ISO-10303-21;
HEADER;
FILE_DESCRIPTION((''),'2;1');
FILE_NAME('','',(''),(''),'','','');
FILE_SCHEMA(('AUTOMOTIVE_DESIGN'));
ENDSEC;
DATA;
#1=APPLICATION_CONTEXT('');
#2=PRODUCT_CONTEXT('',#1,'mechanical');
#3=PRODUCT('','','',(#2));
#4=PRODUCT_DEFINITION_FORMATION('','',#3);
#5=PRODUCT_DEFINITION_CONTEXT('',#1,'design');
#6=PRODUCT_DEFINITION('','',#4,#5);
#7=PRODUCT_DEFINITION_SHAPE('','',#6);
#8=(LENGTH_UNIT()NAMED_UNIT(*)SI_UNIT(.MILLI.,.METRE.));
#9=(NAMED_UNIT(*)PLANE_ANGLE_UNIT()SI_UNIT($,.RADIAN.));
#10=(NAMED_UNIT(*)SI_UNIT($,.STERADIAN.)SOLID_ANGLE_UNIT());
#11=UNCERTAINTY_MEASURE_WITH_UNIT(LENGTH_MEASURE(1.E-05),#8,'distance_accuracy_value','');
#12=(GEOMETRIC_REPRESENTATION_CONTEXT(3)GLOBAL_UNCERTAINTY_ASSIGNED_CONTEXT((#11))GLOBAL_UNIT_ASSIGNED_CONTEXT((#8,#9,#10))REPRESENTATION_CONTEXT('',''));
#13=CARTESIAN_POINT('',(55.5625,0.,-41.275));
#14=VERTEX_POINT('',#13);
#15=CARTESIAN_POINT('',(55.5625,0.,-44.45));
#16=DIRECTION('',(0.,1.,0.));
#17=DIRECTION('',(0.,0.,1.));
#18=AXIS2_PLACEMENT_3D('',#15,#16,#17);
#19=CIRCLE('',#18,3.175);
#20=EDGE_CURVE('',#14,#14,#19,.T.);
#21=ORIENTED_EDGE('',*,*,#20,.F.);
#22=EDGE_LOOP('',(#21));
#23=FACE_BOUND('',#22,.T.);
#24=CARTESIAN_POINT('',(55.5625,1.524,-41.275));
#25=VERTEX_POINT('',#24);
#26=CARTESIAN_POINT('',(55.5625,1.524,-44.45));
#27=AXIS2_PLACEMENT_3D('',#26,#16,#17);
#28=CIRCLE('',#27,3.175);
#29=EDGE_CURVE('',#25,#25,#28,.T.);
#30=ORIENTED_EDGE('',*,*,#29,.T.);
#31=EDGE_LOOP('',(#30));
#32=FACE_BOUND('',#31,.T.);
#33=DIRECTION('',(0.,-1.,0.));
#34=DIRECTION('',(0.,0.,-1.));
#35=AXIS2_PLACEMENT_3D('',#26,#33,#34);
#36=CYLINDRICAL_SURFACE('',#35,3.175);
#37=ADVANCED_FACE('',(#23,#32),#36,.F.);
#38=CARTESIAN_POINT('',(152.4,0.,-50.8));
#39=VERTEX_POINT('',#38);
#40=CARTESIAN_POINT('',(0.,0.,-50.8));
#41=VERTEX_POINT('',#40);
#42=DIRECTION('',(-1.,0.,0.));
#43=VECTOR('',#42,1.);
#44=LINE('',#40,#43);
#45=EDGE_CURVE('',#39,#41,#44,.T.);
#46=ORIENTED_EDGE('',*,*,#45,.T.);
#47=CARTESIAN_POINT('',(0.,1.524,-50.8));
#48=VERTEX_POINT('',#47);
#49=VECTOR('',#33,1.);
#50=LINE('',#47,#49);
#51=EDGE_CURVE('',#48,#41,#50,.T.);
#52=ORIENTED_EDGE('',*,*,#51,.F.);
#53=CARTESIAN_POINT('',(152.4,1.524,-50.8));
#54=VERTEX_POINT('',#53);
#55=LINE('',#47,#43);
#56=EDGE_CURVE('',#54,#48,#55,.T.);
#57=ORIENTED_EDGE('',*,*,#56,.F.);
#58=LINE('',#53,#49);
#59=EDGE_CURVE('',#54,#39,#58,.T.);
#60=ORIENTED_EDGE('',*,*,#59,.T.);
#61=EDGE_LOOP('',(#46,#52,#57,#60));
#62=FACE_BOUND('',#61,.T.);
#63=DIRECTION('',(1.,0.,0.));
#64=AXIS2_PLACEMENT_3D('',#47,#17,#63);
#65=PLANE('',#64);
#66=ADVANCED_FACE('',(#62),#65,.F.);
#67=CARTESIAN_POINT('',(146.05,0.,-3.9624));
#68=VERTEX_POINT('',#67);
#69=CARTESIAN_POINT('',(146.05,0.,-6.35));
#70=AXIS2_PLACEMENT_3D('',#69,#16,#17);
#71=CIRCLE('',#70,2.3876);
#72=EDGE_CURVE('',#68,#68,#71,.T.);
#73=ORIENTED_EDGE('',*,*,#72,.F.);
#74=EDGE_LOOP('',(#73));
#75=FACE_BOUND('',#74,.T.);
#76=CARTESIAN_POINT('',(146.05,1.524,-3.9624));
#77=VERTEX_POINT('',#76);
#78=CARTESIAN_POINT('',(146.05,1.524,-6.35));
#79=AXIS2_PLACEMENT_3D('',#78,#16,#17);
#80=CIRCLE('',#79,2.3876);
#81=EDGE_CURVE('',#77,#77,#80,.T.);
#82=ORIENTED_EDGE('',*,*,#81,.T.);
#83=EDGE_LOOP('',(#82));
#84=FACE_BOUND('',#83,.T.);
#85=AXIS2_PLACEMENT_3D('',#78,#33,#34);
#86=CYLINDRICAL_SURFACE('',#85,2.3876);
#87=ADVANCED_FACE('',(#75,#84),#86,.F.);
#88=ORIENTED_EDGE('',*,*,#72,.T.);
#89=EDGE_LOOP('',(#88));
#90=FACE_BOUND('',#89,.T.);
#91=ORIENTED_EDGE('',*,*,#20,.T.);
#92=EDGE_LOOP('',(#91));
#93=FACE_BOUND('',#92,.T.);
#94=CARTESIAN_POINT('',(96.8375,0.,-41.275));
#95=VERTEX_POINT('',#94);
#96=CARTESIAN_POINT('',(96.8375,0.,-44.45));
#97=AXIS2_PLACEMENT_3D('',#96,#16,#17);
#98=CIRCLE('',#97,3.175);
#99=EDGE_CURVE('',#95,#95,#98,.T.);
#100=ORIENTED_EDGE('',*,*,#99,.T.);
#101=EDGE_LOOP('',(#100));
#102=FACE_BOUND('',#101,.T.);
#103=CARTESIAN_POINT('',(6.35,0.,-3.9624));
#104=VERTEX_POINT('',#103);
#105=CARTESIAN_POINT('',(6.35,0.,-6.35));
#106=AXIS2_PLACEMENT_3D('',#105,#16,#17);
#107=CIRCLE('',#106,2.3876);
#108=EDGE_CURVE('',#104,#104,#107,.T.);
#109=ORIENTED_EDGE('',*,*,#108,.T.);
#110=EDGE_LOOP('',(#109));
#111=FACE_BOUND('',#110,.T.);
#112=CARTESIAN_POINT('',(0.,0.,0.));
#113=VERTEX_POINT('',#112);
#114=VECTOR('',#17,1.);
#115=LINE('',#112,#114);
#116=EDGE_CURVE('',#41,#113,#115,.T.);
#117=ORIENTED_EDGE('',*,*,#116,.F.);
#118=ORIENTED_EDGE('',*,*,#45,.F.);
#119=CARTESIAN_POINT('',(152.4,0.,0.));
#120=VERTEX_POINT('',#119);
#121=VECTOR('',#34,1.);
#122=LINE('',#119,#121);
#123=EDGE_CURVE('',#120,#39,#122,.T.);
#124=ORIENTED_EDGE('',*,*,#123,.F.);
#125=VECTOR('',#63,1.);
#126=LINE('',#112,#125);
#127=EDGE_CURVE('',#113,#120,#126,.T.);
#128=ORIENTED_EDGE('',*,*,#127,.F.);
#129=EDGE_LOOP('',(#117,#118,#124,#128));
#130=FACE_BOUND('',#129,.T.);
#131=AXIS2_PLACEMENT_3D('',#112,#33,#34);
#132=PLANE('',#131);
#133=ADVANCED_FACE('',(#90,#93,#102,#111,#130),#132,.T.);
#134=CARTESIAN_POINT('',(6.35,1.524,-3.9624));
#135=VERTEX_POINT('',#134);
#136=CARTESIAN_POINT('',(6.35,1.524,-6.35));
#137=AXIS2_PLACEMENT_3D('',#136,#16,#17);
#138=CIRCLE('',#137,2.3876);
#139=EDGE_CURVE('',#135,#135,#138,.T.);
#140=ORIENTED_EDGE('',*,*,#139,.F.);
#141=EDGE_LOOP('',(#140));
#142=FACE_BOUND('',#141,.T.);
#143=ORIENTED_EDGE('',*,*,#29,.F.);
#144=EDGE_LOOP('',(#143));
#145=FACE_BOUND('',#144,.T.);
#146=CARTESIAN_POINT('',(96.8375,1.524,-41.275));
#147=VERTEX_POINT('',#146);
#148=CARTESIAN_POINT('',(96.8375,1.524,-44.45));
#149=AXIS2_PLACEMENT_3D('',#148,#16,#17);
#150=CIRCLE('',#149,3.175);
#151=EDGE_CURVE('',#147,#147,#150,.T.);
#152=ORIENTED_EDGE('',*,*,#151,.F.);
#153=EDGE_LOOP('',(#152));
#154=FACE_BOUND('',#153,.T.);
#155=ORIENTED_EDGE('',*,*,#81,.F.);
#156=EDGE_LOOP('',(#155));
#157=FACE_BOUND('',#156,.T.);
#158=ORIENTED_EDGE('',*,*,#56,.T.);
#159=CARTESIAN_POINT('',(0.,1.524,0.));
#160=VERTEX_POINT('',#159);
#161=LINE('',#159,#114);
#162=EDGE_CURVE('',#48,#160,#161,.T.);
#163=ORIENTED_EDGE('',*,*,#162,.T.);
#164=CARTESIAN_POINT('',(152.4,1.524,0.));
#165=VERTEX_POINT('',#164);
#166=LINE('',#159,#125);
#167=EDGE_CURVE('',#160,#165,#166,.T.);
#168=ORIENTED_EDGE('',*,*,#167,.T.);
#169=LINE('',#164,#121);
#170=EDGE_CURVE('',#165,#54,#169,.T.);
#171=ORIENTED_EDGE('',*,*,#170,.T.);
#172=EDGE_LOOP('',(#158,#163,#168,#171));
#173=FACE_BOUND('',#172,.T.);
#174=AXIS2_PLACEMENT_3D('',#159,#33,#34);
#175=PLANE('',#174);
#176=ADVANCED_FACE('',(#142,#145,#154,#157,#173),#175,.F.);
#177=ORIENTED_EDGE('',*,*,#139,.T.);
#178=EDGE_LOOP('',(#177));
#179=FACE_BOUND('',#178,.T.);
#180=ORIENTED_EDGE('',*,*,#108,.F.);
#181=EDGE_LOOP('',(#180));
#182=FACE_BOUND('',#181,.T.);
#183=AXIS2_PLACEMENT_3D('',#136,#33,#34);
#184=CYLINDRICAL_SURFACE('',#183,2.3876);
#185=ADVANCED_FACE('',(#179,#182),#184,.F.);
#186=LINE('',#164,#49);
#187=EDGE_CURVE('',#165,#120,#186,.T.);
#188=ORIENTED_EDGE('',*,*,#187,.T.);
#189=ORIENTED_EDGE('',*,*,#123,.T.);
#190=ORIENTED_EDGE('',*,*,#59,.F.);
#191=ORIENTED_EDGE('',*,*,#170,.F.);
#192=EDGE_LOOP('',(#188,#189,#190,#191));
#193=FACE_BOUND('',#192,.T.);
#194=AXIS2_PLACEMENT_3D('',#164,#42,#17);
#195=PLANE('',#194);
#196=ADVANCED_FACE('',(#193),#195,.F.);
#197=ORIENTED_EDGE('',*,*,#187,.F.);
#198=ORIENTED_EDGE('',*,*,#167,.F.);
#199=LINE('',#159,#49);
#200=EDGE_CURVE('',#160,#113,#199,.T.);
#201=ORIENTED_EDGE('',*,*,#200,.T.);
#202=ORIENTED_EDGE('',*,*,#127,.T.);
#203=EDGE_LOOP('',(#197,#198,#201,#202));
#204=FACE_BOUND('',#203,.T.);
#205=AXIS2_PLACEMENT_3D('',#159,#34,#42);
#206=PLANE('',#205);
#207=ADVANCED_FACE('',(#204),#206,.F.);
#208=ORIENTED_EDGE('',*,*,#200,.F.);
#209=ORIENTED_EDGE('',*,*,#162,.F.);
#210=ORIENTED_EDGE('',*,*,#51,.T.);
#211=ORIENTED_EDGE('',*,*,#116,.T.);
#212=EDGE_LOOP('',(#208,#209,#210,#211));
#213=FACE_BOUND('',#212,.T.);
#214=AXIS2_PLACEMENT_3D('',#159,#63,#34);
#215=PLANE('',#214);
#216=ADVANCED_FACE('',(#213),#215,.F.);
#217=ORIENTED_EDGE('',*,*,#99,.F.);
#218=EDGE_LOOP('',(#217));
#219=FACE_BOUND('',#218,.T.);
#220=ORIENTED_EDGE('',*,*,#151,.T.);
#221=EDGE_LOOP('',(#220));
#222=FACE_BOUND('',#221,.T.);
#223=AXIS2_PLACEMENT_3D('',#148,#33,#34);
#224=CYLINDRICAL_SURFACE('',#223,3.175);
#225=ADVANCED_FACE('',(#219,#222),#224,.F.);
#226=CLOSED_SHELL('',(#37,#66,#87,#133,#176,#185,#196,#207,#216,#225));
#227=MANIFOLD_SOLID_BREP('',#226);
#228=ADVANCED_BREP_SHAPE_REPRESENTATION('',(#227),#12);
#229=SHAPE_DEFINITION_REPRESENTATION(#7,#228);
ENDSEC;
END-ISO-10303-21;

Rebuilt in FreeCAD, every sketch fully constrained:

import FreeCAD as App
import Part
import Sketcher
from FreeCAD import Vector
Q = App.Units.Quantity


def add_polygon(sketch, points):
    """Adds a closed chain of lines whose ends are joined by coincident constraints."""
    first, n = sketch.GeometryCount, len(points)
    for a, b in zip(points, points[1:] + points[:1]):
        sketch.addGeometry(Part.LineSegment(App.Vector(*a, 0), App.Vector(*b, 0)), False)
    for i in range(n):
        sketch.addConstraint(Sketcher.Constraint("Coincident", first + i, 2, first + (i + 1) % n, 1))

doc = App.newDocument("Part")
body = doc.addObject("PartDesign::Body", "Body")

sketch1 = body.newObject("Sketcher::SketchObject", "Sketch")
sketch1.AttachmentSupport = (doc.getObject("XZ_Plane"), [""])
sketch1.MapMode = "FlatFace"
add_polygon(sketch1, [(0, -50.8), (0, 0), (152.4, 0), (152.4, -50.8)])
sketch1.addGeometry(Part.Circle(Vector(6.3, -6.3, 0), Vector(0, 0, 1), 2.4), False)
sketch1.addGeometry(Part.Circle(Vector(146.1, -6.3, 0), Vector(0, 0, 1), 2.4), False)
sketch1.addGeometry(Part.Circle(Vector(55.6, -44.5, 0), Vector(0, 0, 1), 3.2), False)
sketch1.addGeometry(Part.Circle(Vector(96.8, -44.5, 0), Vector(0, 0, 1), 3.2), False)
sketch1.addConstraint([
    Sketcher.Constraint("Vertical", 0),
    Sketcher.Constraint("Horizontal", 1),
    Sketcher.Constraint("Vertical", 2),
    Sketcher.Constraint("Horizontal", 3),
    Sketcher.Constraint("Coincident", 0, 2, -1, 1),
    Sketcher.Constraint("Equal", 4, 5),
    Sketcher.Constraint("Equal", 6, 7),
    Sketcher.Constraint("Horizontal", 4, 3, 5, 3),
    Sketcher.Constraint("Horizontal", 6, 3, 7, 3),
    Sketcher.Constraint("Diameter", 6, Q("0.25 in")),
    Sketcher.Constraint("DistanceX", 1, 1, 1, 2, Q("6 in")),
    Sketcher.Constraint("DistanceY", 0, 1, 0, 2, Q("2 in")),
    Sketcher.Constraint("Diameter", 4, Q("0.188 in")),
    Sketcher.Constraint("DistanceX", 4, 3, 5, 3, Q("5.5 in")),
    Sketcher.Constraint("DistanceY", 6, 3, 4, 3, Q("1.5 in")),
    Sketcher.Constraint("DistanceX", -1, 1, 4, 3, Q("0.25 in")),
    Sketcher.Constraint("DistanceY", 4, 3, -1, 1, Q("0.25 in")),
    Sketcher.Constraint("DistanceX", -1, 1, 6, 3, Q("2.1875 in")),
    Sketcher.Constraint("DistanceX", -1, 1, 7, 3, Q("3.8125 in")),
])
pad1 = body.newObject("PartDesign::Pad", "Pad")
pad1.Profile = sketch1
pad1.Length = Q("0.06 in")
pad1.Reversed = True

doc.recompute()
